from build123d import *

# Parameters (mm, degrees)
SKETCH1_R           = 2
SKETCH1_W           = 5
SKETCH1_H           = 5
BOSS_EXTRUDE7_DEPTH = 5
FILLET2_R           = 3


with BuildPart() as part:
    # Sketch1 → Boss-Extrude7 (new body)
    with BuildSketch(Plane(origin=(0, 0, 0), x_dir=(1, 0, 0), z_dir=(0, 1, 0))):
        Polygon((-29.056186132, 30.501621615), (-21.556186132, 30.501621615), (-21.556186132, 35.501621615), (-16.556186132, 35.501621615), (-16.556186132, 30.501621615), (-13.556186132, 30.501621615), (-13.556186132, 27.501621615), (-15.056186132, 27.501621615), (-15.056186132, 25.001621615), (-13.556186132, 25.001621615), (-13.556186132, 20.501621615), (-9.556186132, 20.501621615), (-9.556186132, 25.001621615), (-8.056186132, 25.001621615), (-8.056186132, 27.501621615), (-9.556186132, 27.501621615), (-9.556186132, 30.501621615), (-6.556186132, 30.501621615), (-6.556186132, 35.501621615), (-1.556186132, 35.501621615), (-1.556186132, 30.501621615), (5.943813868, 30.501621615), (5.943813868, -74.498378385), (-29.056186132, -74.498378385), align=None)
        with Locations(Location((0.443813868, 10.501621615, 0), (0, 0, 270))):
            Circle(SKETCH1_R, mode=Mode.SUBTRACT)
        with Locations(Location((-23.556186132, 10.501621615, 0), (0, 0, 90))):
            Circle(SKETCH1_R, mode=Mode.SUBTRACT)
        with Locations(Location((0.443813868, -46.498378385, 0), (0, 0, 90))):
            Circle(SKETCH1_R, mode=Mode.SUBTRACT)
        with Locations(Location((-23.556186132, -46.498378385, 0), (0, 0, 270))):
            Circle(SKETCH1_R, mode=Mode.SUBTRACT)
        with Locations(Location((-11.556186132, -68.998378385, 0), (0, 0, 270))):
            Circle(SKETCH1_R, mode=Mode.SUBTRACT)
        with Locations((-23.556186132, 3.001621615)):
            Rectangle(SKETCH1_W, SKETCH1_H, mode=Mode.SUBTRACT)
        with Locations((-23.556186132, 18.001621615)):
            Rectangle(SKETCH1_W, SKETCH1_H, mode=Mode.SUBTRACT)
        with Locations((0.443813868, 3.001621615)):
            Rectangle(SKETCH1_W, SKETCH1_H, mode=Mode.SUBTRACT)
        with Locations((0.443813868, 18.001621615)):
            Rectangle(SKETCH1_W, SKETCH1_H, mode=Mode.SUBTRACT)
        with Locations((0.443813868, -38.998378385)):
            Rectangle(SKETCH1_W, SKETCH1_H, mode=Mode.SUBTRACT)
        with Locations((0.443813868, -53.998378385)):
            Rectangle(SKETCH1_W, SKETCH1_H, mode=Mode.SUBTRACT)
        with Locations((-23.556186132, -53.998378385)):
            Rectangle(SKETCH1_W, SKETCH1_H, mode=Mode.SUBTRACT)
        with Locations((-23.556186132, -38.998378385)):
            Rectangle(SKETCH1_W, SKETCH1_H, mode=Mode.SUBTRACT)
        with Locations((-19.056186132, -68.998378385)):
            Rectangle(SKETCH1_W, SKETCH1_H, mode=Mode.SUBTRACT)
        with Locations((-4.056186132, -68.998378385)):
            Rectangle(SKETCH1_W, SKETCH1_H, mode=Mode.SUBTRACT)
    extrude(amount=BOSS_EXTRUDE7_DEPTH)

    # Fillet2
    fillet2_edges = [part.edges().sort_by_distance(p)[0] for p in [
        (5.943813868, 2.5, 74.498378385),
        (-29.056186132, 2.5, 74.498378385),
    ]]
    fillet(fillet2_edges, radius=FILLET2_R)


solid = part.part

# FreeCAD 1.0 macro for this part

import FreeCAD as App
import Part
import Sketcher

V = App.Vector
Q = App.Units.Quantity


def edges_at(feature, points):
    """Names of the edges that pass closest to the given points."""
    edges = feature.Shape.Edges
    near = lambda p: min(range(len(edges)), key=lambda i: edges[i].distToShape(Part.Vertex(*p))[0])
    return sorted({f"Edge{near(p) + 1}" for p in points})


def add_polygon(sketch, points):
    """Adds a closed chain of lines whose ends are joined by coincident constraints."""
    first, n = sketch.GeometryCount, len(points)
    for a, b in zip(points, points[1:] + points[:1]):
        sketch.addGeometry(Part.LineSegment(App.Vector(*a, 0), App.Vector(*b, 0)), False)
    for i in range(n):
        sketch.addConstraint(Sketcher.Constraint("Coincident", first + i, 2, first + (i + 1) % n, 1))

doc = App.newDocument("Part")
body = doc.addObject("PartDesign::Body", "Body")

# Sketch on XZ plane
sketch1 = doc.addObject("Sketcher::SketchObject", "Sketch")
body.addObject(sketch1)
sketch1.AttachmentSupport = (doc.XZ_Plane, [""])
sketch1.MapMode = "FlatFace"
add_polygon(sketch1, [(-21.6, -30.5), (-29.1, -30.5), (-29.1, 74.5), (5.9, 74.5), (5.9, -30.5), (-1.6, -30.5), (-1.6, -35.5), (-6.6, -35.5), (-6.6, -30.5), (-9.6, -30.5), (-9.6, -27.5), (-8.1, -27.5), (-8.1, -25), (-9.6, -25), (-9.6, -20.5), (-13.6, -20.5), (-13.6, -25), (-15.1, -25), (-15.1, -27.5), (-13.6, -27.5), (-13.6, -30.5), (-16.6, -30.5), (-16.6, -35.5), (-21.6, -35.5)])  # lines 0-23
add_polygon(sketch1, [(-6.6, 71.5), (-6.6, 66.5), (-1.6, 66.5), (-1.6, 71.5)])  # lines 24-27
add_polygon(sketch1, [(-2.1, 56.5), (-2.1, 51.5), (2.9, 51.5), (2.9, 56.5)])  # lines 28-31
sketch1.addGeometry(Part.Circle(V(0.4, 46.5, 0), V(0, 0, 1), 2), False)  # 32
add_polygon(sketch1, [(-2.1, 41.5), (-2.1, 36.5), (2.9, 36.5), (2.9, 41.5)])  # lines 33-36
sketch1.addGeometry(Part.Circle(V(-11.6, 69, 0), V(0, 0, 1), 2), False)  # 37
add_polygon(sketch1, [(-21.6, 71.5), (-21.6, 66.5), (-16.6, 66.5), (-16.6, 71.5)])  # lines 38-41
add_polygon(sketch1, [(-26.1, 56.5), (-26.1, 51.5), (-21.1, 51.5), (-21.1, 56.5)])  # lines 42-45
sketch1.addGeometry(Part.Circle(V(-23.6, 46.5, 0), V(0, 0, 1), 2), False)  # 46
add_polygon(sketch1, [(-26.1, 41.5), (-26.1, 36.5), (-21.1, 36.5), (-21.1, 41.5)])  # lines 47-50
add_polygon(sketch1, [(-2.1, -0.5), (-2.1, -5.5), (2.9, -5.5), (2.9, -0.5)])  # lines 51-54
sketch1.addGeometry(Part.Circle(V(0.4, -10.5, 0), V(0, 0, 1), 2), False)  # 55
add_polygon(sketch1, [(-2.1, -15.5), (-2.1, -20.5), (2.9, -20.5), (2.9, -15.5)])  # lines 56-59
add_polygon(sketch1, [(-26.1, -0.5), (-26.1, -5.5), (-21.1, -5.5), (-21.1, -0.5)])  # lines 60-63
sketch1.addGeometry(Part.Circle(V(-23.6, -10.5, 0), V(0, 0, 1), 2), False)  # 64
add_polygon(sketch1, [(-26.1, -15.5), (-26.1, -20.5), (-21.1, -20.5), (-21.1, -15.5)])  # lines 65-68
sketch1.addConstraint([
    Sketcher.Constraint("Horizontal", 0),
    Sketcher.Constraint("Vertical", 1),
    Sketcher.Constraint("Horizontal", 2),
    Sketcher.Constraint("Vertical", 3),
    Sketcher.Constraint("Horizontal", 4),
    Sketcher.Constraint("Vertical", 5),
    Sketcher.Constraint("Horizontal", 6),
    Sketcher.Constraint("Vertical", 7),
    Sketcher.Constraint("Horizontal", 8),
    Sketcher.Constraint("Vertical", 9),
    Sketcher.Constraint("Horizontal", 10),
    Sketcher.Constraint("Vertical", 11),
    Sketcher.Constraint("Horizontal", 12),
    Sketcher.Constraint("Vertical", 13),
    Sketcher.Constraint("Horizontal", 14),
    Sketcher.Constraint("Vertical", 15),
    Sketcher.Constraint("Horizontal", 16),
    Sketcher.Constraint("Vertical", 17),
    Sketcher.Constraint("Horizontal", 18),
    Sketcher.Constraint("Vertical", 19),
    Sketcher.Constraint("Horizontal", 20),
    Sketcher.Constraint("Vertical", 21),
    Sketcher.Constraint("Horizontal", 22),
    Sketcher.Constraint("Vertical", 23),
    Sketcher.Constraint("Vertical", 24),
    Sketcher.Constraint("Horizontal", 25),
    Sketcher.Constraint("Vertical", 26),
    Sketcher.Constraint("Horizontal", 27),
    Sketcher.Constraint("Vertical", 28),
    Sketcher.Constraint("Horizontal", 29),
    Sketcher.Constraint("Vertical", 30),
    Sketcher.Constraint("Horizontal", 31),
    Sketcher.Constraint("Vertical", 33),
    Sketcher.Constraint("Horizontal", 34),
    Sketcher.Constraint("Vertical", 35),
    Sketcher.Constraint("Horizontal", 36),
    Sketcher.Constraint("Vertical", 38),
    Sketcher.Constraint("Horizontal", 39),
    Sketcher.Constraint("Vertical", 40),
    Sketcher.Constraint("Horizontal", 41),
    Sketcher.Constraint("Vertical", 42),
    Sketcher.Constraint("Horizontal", 43),
    Sketcher.Constraint("Vertical", 44),
    Sketcher.Constraint("Horizontal", 45),
    Sketcher.Constraint("Vertical", 47),
    Sketcher.Constraint("Horizontal", 48),
    Sketcher.Constraint("Vertical", 49),
    Sketcher.Constraint("Horizontal", 50),
    Sketcher.Constraint("Vertical", 51),
    Sketcher.Constraint("Horizontal", 52),
    Sketcher.Constraint("Vertical", 53),
    Sketcher.Constraint("Horizontal", 54),
    Sketcher.Constraint("Vertical", 56),
    Sketcher.Constraint("Horizontal", 57),
    Sketcher.Constraint("Vertical", 58),
    Sketcher.Constraint("Horizontal", 59),
    Sketcher.Constraint("Vertical", 60),
    Sketcher.Constraint("Horizontal", 61),
    Sketcher.Constraint("Vertical", 62),
    Sketcher.Constraint("Horizontal", 63),
    Sketcher.Constraint("Vertical", 65),
    Sketcher.Constraint("Horizontal", 66),
    Sketcher.Constraint("Vertical", 67),
    Sketcher.Constraint("Horizontal", 68),
    Sketcher.Constraint("Equal", 32, 37),
    Sketcher.Constraint("Equal", 37, 46),
    Sketcher.Constraint("Equal", 46, 55),
    Sketcher.Constraint("Equal", 55, 64),
    Sketcher.Constraint("Horizontal", 32, 3, 46, 3),
    Sketcher.Constraint("Horizontal", 55, 3, 64, 3),
    Sketcher.Constraint("Horizontal", 0, 2, 3, 2),
    Sketcher.Constraint("Horizontal", 4, 2, 7, 2),
    Sketcher.Constraint("Horizontal", 12, 2, 15, 2),
    Sketcher.Constraint("Horizontal", 10, 2, 17, 2),
    Sketcher.Constraint("Horizontal", 8, 2, 19, 2),
    Sketcher.Constraint("Horizontal", 6, 2, 21, 2),
    Sketcher.Constraint("Horizontal", 25, 2, 38, 2),
    Sketcher.Constraint("Horizontal", 27, 2, 40, 2),
    Sketcher.Constraint("Horizontal", 29, 2, 42, 2),
    Sketcher.Constraint("Horizontal", 31, 2, 44, 2),
    Sketcher.Constraint("Horizontal", 34, 2, 47, 2),
    Sketcher.Constraint("Horizontal", 36, 2, 49, 2),
    Sketcher.Constraint("Horizontal", 14, 2, 56, 2),
    Sketcher.Constraint("Horizontal", 52, 2, 60, 2),
    Sketcher.Constraint("Horizontal", 54, 2, 62, 2),
    Sketcher.Constraint("Horizontal", 57, 2, 65, 2),
    Sketcher.Constraint("Horizontal", 59, 2, 67, 2),
    Sketcher.Constraint("Vertical", 32, 3, 55, 3),
    Sketcher.Constraint("Vertical", 46, 3, 64, 3),
    Sketcher.Constraint("Vertical", 9, 2, 12, 2),
    Sketcher.Constraint("Vertical", 15, 2, 18, 2),
    Sketcher.Constraint("Vertical", 7, 2, 24, 2),
    Sketcher.Constraint("Vertical", 5, 2, 25, 2),
    Sketcher.Constraint("Vertical", 31, 2, 33, 2),
    Sketcher.Constraint("Vertical", 30, 2, 34, 2),
    Sketcher.Constraint("Vertical", 23, 2, 38, 2),
    Sketcher.Constraint("Vertical", 21, 2, 39, 2),
    Sketcher.Constraint("Vertical", 45, 2, 47, 2),
    Sketcher.Constraint("Vertical", 44, 2, 48, 2),
    Sketcher.Constraint("Vertical", 36, 2, 51, 2),
    Sketcher.Constraint("Vertical", 35, 2, 52, 2),
    Sketcher.Constraint("Vertical", 54, 2, 56, 2),
    Sketcher.Constraint("Vertical", 53, 2, 57, 2),
    Sketcher.Constraint("Vertical", 50, 2, 60, 2),
    Sketcher.Constraint("Vertical", 49, 2, 61, 2),
    Sketcher.Constraint("Vertical", 63, 2, 65, 2),
    Sketcher.Constraint("Vertical", 62, 2, 66, 2),
    Sketcher.Constraint("Equal", 0, 4),
    Sketcher.Constraint("Equal", 12, 16),
    Sketcher.Constraint("Equal", 8, 20),
    Sketcher.Constraint("Equal", 6, 22),
    Sketcher.Constraint("Equal", 27, 29),
    Sketcher.Constraint("Equal", 41, 43),
    Sketcher.Constraint("Equal", 68, 5),
    Sketcher.Constraint("Equal", 20, 9),
    Sketcher.Constraint("Equal", 23, 24),
    Sketcher.Constraint("Equal", 26, 28),
    Sketcher.Constraint("Equal", 30, 33),
    Sketcher.Constraint("Equal", 49, 51),
    Sketcher.Constraint("Equal", 53, 56),
    Sketcher.Constraint("Diameter", 32, Q("4 mm")),
    Sketcher.Constraint("DistanceX", 2, 1, 2, 2, Q("35 mm")),
    Sketcher.Constraint("DistanceX", 6, 2, 6, 1, Q("5 mm")),
    Sketcher.Constraint("DistanceX", 8, 2, 8, 1, Q("3 mm")),
    Sketcher.Constraint("DistanceX", 14, 2, 14, 1, Q("4 mm")),
    Sketcher.Constraint("DistanceY", 1, 1, 1, 2, Q("105 mm")),
    Sketcher.Constraint("DistanceX", 10, 1, 10, 2, Q("1.5 mm")),
    Sketcher.Constraint("DistanceY", 11, 1, 11, 2, Q("2.5 mm")),
    Sketcher.Constraint("DistanceY", 13, 1, 13, 2, Q("4.5 mm")),
    Sketcher.Constraint("DistanceY", -1, 1, 32, 3, Q("46.498378 mm")),
    Sketcher.Constraint("DistanceY", -1, 1, 37, 3, Q("68.998378 mm")),
    Sketcher.Constraint("DistanceY", 55, 3, -1, 1, Q("10.501622 mm")),
    Sketcher.Constraint("DistanceY", 0, 2, -1, 1, Q("30.501622 mm")),
    Sketcher.Constraint("DistanceY", -1, 1, 24, 2, Q("66.498378 mm")),
    Sketcher.Constraint("DistanceY", -1, 1, 28, 2, Q("51.498378 mm")),
    Sketcher.Constraint("DistanceY", -1, 1, 33, 2, Q("36.498378 mm")),
    Sketcher.Constraint("DistanceY", 51, 2, -1, 1, Q("5.501622 mm")),
    Sketcher.Constraint("DistanceX", -1, 1, 32, 3, Q("0.443814 mm")),
    Sketcher.Constraint("DistanceX", 37, 3, -1, 1, Q("11.556186 mm")),
    Sketcher.Constraint("DistanceX", 46, 3, -1, 1, Q("23.556186 mm")),
    Sketcher.Constraint("DistanceX", 0, 2, -1, 1, Q("29.056186 mm")),
    Sketcher.Constraint("DistanceX", 28, 2, -1, 1, Q("2.056186 mm")),
    Sketcher.Constraint("DistanceX", 42, 2, -1, 1, Q("26.056186 mm")),
])
pad1 = doc.addObject("PartDesign::Pad", "Pad")
body.addObject(pad1)
pad1.Profile = sketch1
pad1.Length = 5
pad1.Reversed = True
doc.recompute()

fillet = doc.addObject("PartDesign::Fillet", "Fillet")
body.addObject(fillet)
fillet.Base = (pad1, edges_at(pad1, [(5.944, 2.5, 74.498), (-29.056, 2.5, 74.498)]))
fillet.Radius = 3

doc.recompute()
